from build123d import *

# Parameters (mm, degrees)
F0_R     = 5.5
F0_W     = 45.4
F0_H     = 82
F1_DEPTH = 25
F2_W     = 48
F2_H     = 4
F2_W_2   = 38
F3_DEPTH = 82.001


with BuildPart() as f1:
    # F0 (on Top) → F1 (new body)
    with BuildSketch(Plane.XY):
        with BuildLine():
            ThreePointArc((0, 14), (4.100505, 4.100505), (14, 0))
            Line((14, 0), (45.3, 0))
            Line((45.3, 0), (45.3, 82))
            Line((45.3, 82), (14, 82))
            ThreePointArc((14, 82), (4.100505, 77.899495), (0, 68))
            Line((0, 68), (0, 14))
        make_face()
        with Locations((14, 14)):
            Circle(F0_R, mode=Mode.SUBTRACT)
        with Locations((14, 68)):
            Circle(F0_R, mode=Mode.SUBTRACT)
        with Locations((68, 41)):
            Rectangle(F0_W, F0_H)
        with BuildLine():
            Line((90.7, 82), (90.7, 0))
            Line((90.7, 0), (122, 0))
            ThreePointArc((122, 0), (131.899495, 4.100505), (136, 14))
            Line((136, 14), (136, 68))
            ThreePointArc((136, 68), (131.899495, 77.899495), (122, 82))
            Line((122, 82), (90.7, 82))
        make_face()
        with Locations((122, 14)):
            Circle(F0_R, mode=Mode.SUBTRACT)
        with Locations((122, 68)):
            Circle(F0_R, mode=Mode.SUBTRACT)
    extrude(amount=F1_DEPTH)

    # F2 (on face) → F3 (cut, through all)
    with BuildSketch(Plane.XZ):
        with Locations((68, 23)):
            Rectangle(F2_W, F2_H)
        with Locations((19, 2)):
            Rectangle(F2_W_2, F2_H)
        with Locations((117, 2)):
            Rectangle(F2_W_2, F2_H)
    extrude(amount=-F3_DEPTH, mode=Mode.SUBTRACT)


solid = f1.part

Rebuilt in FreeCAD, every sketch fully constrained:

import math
import FreeCAD as App
import Part
import Sketcher

V = App.Vector

doc = App.newDocument("Part")
params = doc.addObject("Spreadsheet::Sheet", "Params")
for row, (alias, value) in enumerate([
    ("sketch1_diameter", "11 mm"),
    ("sketch1_radius", "14 mm"),
    ("sketch1_width", "108 mm"),
    ("sketch1_height", "54 mm"),
    ("pad1_length", "25 mm"),
    ("sketch2_width", "48 mm"),
    ("sketch2_width2", "38 mm"),
    ("sketch2_height", "4 mm"),
], start=1):
    params.set(f"A{row}", alias)
    params.set(f"B{row}", "=" + value)
    params.setAlias(f"B{row}", alias)

body = doc.addObject("PartDesign::Body", "Body")

sketch1 = body.newObject("Sketcher::SketchObject", "Sketch")
sketch1.AttachmentSupport = (doc.getObject("XY_Plane"), [""])
sketch1.MapMode = "FlatFace"
sketch1.addGeometry([
    Part.ArcOfCircle(Part.Circle(V(14, 14, 0), V(0, 0, 1), 14), math.radians(180), math.radians(270)),
    Part.LineSegment(V(14, 0, 0), V(122, 0, 0)),
    Part.ArcOfCircle(Part.Circle(V(122, 14, 0), V(0, 0, 1), 14), math.radians(-90), math.radians(0)),
    Part.LineSegment(V(136, 14, 0), V(136, 68, 0)),
    Part.ArcOfCircle(Part.Circle(V(122, 68, 0), V(0, 0, 1), 14), math.radians(0), math.radians(90)),
    Part.LineSegment(V(122, 82, 0), V(14, 82, 0)),
    Part.ArcOfCircle(Part.Circle(V(14, 68, 0), V(0, 0, 1), 14), math.radians(90), math.radians(180)),
    Part.LineSegment(V(0, 68, 0), V(0, 14, 0)),
    Part.Circle(V(14, 14, 0), V(0, 0, 1), 6),
    Part.Circle(V(122, 14, 0), V(0, 0, 1), 6),
    Part.Circle(V(14, 68, 0), V(0, 0, 1), 6),
    Part.Circle(V(122, 68, 0), V(0, 0, 1), 6),
], False)
sketch1.addConstraint([
    Sketcher.Constraint("Tangent", 0, 2, 1, 1),
    Sketcher.Constraint("Tangent", 1, 2, 2, 1),
    Sketcher.Constraint("Tangent", 2, 2, 3, 1),
    Sketcher.Constraint("Tangent", 3, 2, 4, 1),
    Sketcher.Constraint("Tangent", 4, 2, 5, 1),
    Sketcher.Constraint("Tangent", 5, 2, 6, 1),
    Sketcher.Constraint("Tangent", 6, 2, 7, 1),
    Sketcher.Constraint("Tangent", 7, 2, 0, 1),
    Sketcher.Constraint("Horizontal", 1),
    Sketcher.Constraint("Vertical", 3),
    Sketcher.Constraint("Horizontal", 5),
    Sketcher.Constraint("Vertical", 7),
    Sketcher.Constraint("Coincident", 8, 3, 0, 3),
    Sketcher.Constraint("Coincident", 9, 3, 2, 3),
    Sketcher.Constraint("Coincident", 10, 3, 6, 3),
    Sketcher.Constraint("Coincident", 11, 3, 4, 3),
    Sketcher.Constraint("Equal", 0, 2),
    Sketcher.Constraint("Equal", 2, 4),
    Sketcher.Constraint("Equal", 4, 6),
    Sketcher.Constraint("Equal", 8, 9),
    Sketcher.Constraint("Equal", 9, 10),
    Sketcher.Constraint("Equal", 10, 11),
    Sketcher.Constraint("PointOnObject", 0, 2, -1),
    Sketcher.Constraint("PointOnObject", 6, 2, -2),
    Sketcher.Constraint("Diameter", 8, 11.0),
    Sketcher.Constraint("Radius", 0, 14.0),
    Sketcher.Constraint("DistanceX", 1, 1, 1, 2, 108.0),
    Sketcher.Constraint("DistanceY", 3, 1, 3, 2, 54.0),
])
sketch1.setExpression("Constraints[24]", "Params.sketch1_diameter")
sketch1.setExpression("Constraints[25]", "Params.sketch1_radius")
sketch1.setExpression("Constraints[26]", "Params.sketch1_width")
sketch1.setExpression("Constraints[27]", "Params.sketch1_height")
pad1 = body.newObject("PartDesign::Pad", "Pad")
pad1.Profile = sketch1
pad1.setExpression("Length", "Params.pad1_length")

sketch2 = body.newObject("Sketcher::SketchObject", "Sketch001")
sketch2.AttachmentSupport = (doc.getObject("XZ_Plane"), [""])
sketch2.MapMode = "FlatFace"
sketch2.addGeometry([
    Part.LineSegment(V(44, 25, 0), V(44, 21, 0)),
    Part.LineSegment(V(44, 21, 0), V(92, 21, 0)),
    Part.LineSegment(V(92, 21, 0), V(92, 25, 0)),
    Part.LineSegment(V(92, 25, 0), V(44, 25, 0)),
    Part.LineSegment(V(0, 4, 0), V(0, 0, 0)),
    Part.LineSegment(V(0, 0, 0), V(38, 0, 0)),
    Part.LineSegment(V(38, 0, 0), V(38, 4, 0)),
    Part.LineSegment(V(38, 4, 0), V(0, 4, 0)),
    Part.LineSegment(V(98, 4, 0), V(98, 0, 0)),
    Part.LineSegment(V(98, 0, 0), V(136, 0, 0)),
    Part.LineSegment(V(136, 0, 0), V(136, 4, 0)),
    Part.LineSegment(V(136, 4, 0), V(98, 4, 0)),
], False)
sketch2.addConstraint([
    Sketcher.Constraint("Coincident", 0, 2, 1, 1),
    Sketcher.Constraint("Coincident", 1, 2, 2, 1),
    Sketcher.Constraint("Coincident", 2, 2, 3, 1),
    Sketcher.Constraint("Coincident", 3, 2, 0, 1),
    Sketcher.Constraint("Coincident", 4, 2, 5, 1),
    Sketcher.Constraint("Coincident", 5, 2, 6, 1),
    Sketcher.Constraint("Coincident", 6, 2, 7, 1),
    Sketcher.Constraint("Coincident", 7, 2, 4, 1),
    Sketcher.Constraint("Coincident", 8, 2, 9, 1),
    Sketcher.Constraint("Coincident", 9, 2, 10, 1),
    Sketcher.Constraint("Coincident", 10, 2, 11, 1),
    Sketcher.Constraint("Coincident", 11, 2, 8, 1),
    Sketcher.Constraint("Vertical", 0),
    Sketcher.Constraint("Horizontal", 1),
    Sketcher.Constraint("Vertical", 2),
    Sketcher.Constraint("Horizontal", 3),
    Sketcher.Constraint("Vertical", 4),
    Sketcher.Constraint("Horizontal", 5),
    Sketcher.Constraint("Vertical", 6),
    Sketcher.Constraint("Horizontal", 7),
    Sketcher.Constraint("Vertical", 8),
    Sketcher.Constraint("Horizontal", 9),
    Sketcher.Constraint("Vertical", 10),
    Sketcher.Constraint("Horizontal", 11),
    Sketcher.Constraint("Coincident", 4, 2, -1, 1),
    Sketcher.Constraint("PointOnObject", 8, 2, -1),
    Sketcher.Constraint("Horizontal", 7, 2, 10, 2),
    Sketcher.Constraint("Equal", 7, 9),
    Sketcher.Constraint("Equal", 2, 4),
    Sketcher.Constraint("DistanceX", 1, 1, 1, 2, 48.0),
    Sketcher.Constraint("DistanceX", 5, 1, 5, 2, 38.0),
    Sketcher.Constraint("DistanceY", 0, 2, 0, 1, 4.0),
    Sketcher.Constraint("DistanceX", -1, 1, 0, 2, 44.0),
    Sketcher.Constraint("DistanceY", -1, 1, 0, 2, 21.0),
    Sketcher.Constraint("DistanceX", -1, 1, 8, 2, 98.0),
])
sketch2.setExpression("Constraints[29]", "Params.sketch2_width")
sketch2.setExpression("Constraints[30]", "Params.sketch2_width2")
sketch2.setExpression("Constraints[31]", "Params.sketch2_height")
pocket1 = body.newObject("PartDesign::Pocket", "Pocket")
pocket1.Profile = sketch2
pocket1.Type = "ThroughAll"

doc.recompute()
